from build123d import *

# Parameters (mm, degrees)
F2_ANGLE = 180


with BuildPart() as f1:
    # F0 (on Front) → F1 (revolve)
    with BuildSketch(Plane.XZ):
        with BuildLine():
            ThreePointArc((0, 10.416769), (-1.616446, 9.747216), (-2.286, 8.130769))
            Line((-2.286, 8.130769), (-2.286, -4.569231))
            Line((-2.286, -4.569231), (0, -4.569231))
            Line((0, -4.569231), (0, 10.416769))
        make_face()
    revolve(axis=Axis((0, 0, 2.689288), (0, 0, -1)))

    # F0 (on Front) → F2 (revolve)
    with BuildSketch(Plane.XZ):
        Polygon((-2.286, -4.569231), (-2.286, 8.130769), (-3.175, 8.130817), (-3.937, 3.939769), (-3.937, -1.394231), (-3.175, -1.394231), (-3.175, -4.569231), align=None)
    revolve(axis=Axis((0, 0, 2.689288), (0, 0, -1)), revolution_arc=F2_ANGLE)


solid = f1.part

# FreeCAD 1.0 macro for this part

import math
import FreeCAD as App
import Part
import Sketcher

V = App.Vector
Q = App.Units.Quantity

doc = App.newDocument("Part")
params = doc.addObject("Spreadsheet::Sheet", "Params")
for row, (alias, value) in enumerate([
    ("sketch1_radius", "0.0899999 in"),
    ("sketch1_height", "0.5 in"),
    ("revolution_angle", "360 deg"),
    ("sketch2_height", "0.5 in"),
    ("sketch2_width", "0.03 in"),
    ("sketch2_height2", "0.21 in"),
    ("sketch2_width2", "0.035 in"),
    ("sketch2_height3", "0.125 in"),
    ("revolution2_angle", "180 deg"),
], start=1):
    params.set(f"A{row}", alias)
    params.set(f"B{row}", "=" + value)
    params.setAlias(f"B{row}", alias)

body = doc.addObject("PartDesign::Body", "Body")

# Sketch on XZ plane
sketch1 = body.newObject("Sketcher::SketchObject", "Sketch")
sketch1.AttachmentSupport = (doc.getObject("XZ_Plane"), [""])
sketch1.MapMode = "FlatFace"
sketch1.addGeometry([
    Part.ArcOfCircle(Part.Circle(V(0, 8.1, 0), V(0, 0, 1), 2.3), math.radians(90), math.radians(180)),
    Part.LineSegment(V(-2.3, 8.1, 0), V(-2.3, -4.6, 0)),
    Part.LineSegment(V(-2.3, -4.6, 0), V(0, -4.6, 0)),
    Part.LineSegment(V(0, -4.6, 0), V(0, 10.4, 0)),
], False)
sketch1.addConstraint([
    Sketcher.Constraint("Tangent", 0, 2, 1, 1),
    Sketcher.Constraint("Coincident", 1, 2, 2, 1),
    Sketcher.Constraint("Coincident", 2, 2, 3, 1),
    Sketcher.Constraint("Coincident", 3, 2, 0, 1),
    Sketcher.Constraint("Vertical", 1),
    Sketcher.Constraint("Horizontal", 2),
    Sketcher.Constraint("Vertical", 3),
    Sketcher.Constraint("PointOnObject", 0, 3, -2),
    Sketcher.Constraint("PointOnObject", 2, 2, -2),
    Sketcher.Constraint("Radius", 0, Q("0.0899999 in")),
    Sketcher.Constraint("DistanceY", 1, 2, 1, 1, Q("0.5 in")),
    Sketcher.Constraint("DistanceY", -1, 1, 0, 3, 8.13077),
])
sketch1.setExpression("Constraints[9]", "Params.sketch1_radius")
sketch1.setExpression("Constraints[10]", "Params.sketch1_height")
revolution = body.newObject("PartDesign::Revolution", "Revolution")
revolution.Profile = sketch1
revolution.ReferenceAxis = (sketch1, ["V_Axis"])
revolution.setExpression("Angle", "Params.revolution_angle")

# Sketch on XZ plane
sketch2 = body.newObject("Sketcher::SketchObject", "Sketch001")
sketch2.AttachmentSupport = (doc.getObject("XZ_Plane"), [""])
sketch2.MapMode = "FlatFace"
sketch2.addGeometry([
    Part.LineSegment(V(-2.3, -4.6, 0), V(-2.3, 8.1, 0)),  # 0
    Part.LineSegment(V(-2.3, 8.1, 0), V(-3.2, 8.1, 0)),  # 1
    Part.LineSegment(V(-3.2, 8.1, 0), V(-3.9, 3.9, 0)),  # 2
    Part.LineSegment(V(-3.9, 3.9, 0), V(-3.9, -1.4, 0)),  # 3
    Part.LineSegment(V(-3.9, -1.4, 0), V(-3.2, -1.4, 0)),  # 4
    Part.LineSegment(V(-3.2, -1.4, 0), V(-3.2, -4.6, 0)),  # 5
    Part.LineSegment(V(-3.2, -4.6, 0), V(-2.3, -4.6, 0)),  # 6
], False)
sketch2.addConstraint([
    Sketcher.Constraint("Coincident", 0, 2, 1, 1),
    Sketcher.Constraint("Coincident", 1, 2, 2, 1),
    Sketcher.Constraint("Coincident", 2, 2, 3, 1),
    Sketcher.Constraint("Coincident", 3, 2, 4, 1),
    Sketcher.Constraint("Coincident", 4, 2, 5, 1),
    Sketcher.Constraint("Coincident", 5, 2, 6, 1),
    Sketcher.Constraint("Coincident", 6, 2, 0, 1),
    Sketcher.Constraint("Vertical", 0),
    Sketcher.Constraint("Vertical", 3),
    Sketcher.Constraint("Horizontal", 4),
    Sketcher.Constraint("Vertical", 5),
    Sketcher.Constraint("Horizontal", 6),
    Sketcher.Constraint("Vertical", 1, 2, 4, 2),
    Sketcher.Constraint("DistanceY", 0, 1, 0, 2, Q("0.5 in")),
    Sketcher.Constraint("DistanceX", 4, 1, 4, 2, Q("0.03 in")),
    Sketcher.Constraint("DistanceY", 3, 2, 3, 1, Q("0.21 in")),
    Sketcher.Constraint("DistanceX", 6, 1, 6, 2, Q("0.035 in")),
    Sketcher.Constraint("DistanceY", 5, 2, 5, 1, Q("0.125 in")),
    Sketcher.Constraint("DistanceX", 0, 2, -1, 1, Q("0.09 in")),
    Sketcher.Constraint("DistanceY", -1, 1, 0, 2, 8.130769),
    Sketcher.Constraint("DistanceY", 2, 2, 1, 2, 4.191048),
])
sketch2.setExpression("Constraints[13]", "Params.sketch2_height")
sketch2.setExpression("Constraints[14]", "Params.sketch2_width")
sketch2.setExpression("Constraints[15]", "Params.sketch2_height2")
sketch2.setExpression("Constraints[16]", "Params.sketch2_width2")
sketch2.setExpression("Constraints[17]", "Params.sketch2_height3")
revolution2 = body.newObject("PartDesign::Revolution", "Revolution001")
revolution2.Profile = sketch2
revolution2.ReferenceAxis = (sketch2, ["V_Axis"])
revolution2.setExpression("Angle", "Params.revolution2_angle")
revolution2.Reversed = True

doc.recompute()
